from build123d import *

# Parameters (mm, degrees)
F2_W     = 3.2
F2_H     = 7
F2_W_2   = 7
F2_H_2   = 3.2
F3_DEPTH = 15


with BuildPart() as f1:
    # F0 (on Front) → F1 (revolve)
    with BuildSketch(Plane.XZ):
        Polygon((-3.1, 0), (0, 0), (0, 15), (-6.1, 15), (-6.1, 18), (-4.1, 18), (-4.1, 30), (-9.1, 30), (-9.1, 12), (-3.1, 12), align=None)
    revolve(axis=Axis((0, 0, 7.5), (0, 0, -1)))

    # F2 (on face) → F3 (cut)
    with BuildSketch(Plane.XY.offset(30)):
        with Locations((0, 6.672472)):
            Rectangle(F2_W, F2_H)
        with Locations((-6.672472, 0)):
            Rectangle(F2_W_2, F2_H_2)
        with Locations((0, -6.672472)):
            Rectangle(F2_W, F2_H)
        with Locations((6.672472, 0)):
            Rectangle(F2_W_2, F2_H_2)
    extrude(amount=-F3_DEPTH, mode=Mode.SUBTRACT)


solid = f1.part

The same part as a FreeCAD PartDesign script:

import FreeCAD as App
import Part
import Sketcher


def add_polygon(sketch, points):
    """Adds a closed chain of lines whose ends are joined by coincident constraints."""
    first, n = sketch.GeometryCount, len(points)
    for a, b in zip(points, points[1:] + points[:1]):
        sketch.addGeometry(Part.LineSegment(App.Vector(*a, 0), App.Vector(*b, 0)), False)
    for i in range(n):
        sketch.addConstraint(Sketcher.Constraint("Coincident", first + i, 2, first + (i + 1) % n, 1))

doc = App.newDocument("Part")
body = doc.addObject("PartDesign::Body", "Body")

# Sketch on XZ plane
sketch1 = doc.addObject("Sketcher::SketchObject", "Sketch")
body.addObject(sketch1)
sketch1.AttachmentSupport = (doc.XZ_Plane, [""])
sketch1.MapMode = "FlatFace"
add_polygon(sketch1, [(-3.1, 0), (0, 0), (0, 15), (-6.1, 15), (-6.1, 18), (-4.1, 18), (-4.1, 30), (-9.1, 30), (-9.1, 12), (-3.1, 12)])  # lines 0-9
sketch1.addConstraint([
    Sketcher.Constraint("Horizontal", 0),
    Sketcher.Constraint("Vertical", 1),
    Sketcher.Constraint("Horizontal", 2),
    Sketcher.Constraint("Vertical", 3),
    Sketcher.Constraint("Horizontal", 4),
    Sketcher.Constraint("Vertical", 5),
    Sketcher.Constraint("Horizontal", 6),
    Sketcher.Constraint("Vertical", 7),
    Sketcher.Constraint("Horizontal", 8),
    Sketcher.Constraint("Vertical", 9),
    Sketcher.Constraint("Coincident", 0, 2, -1, 1),
    Sketcher.Constraint("Equal", 5, 9),
    Sketcher.Constraint("DistanceX", 4, 1, 4, 2, 2.0),
    Sketcher.Constraint("DistanceX", 6, 2, 6, 1, 5.0),
    Sketcher.Constraint("DistanceX", 8, 1, 8, 2, 6.0),
    Sketcher.Constraint("DistanceY", 1, 1, 1, 2, 15.0),
    Sketcher.Constraint("DistanceY", 3, 1, 3, 2, 3.0),
    Sketcher.Constraint("DistanceY", 5, 1, 5, 2, 12.0),
    Sketcher.Constraint("DistanceX", 0, 1, 0, 2, 3.1),
])
revolution = doc.addObject("PartDesign::Revolution", "Revolution")
body.addObject(revolution)
revolution.Profile = sketch1
revolution.ReferenceAxis = (sketch1, ["V_Axis"])
revolution.Angle = 360

# Sketch on XY plane
sketch2 = doc.addObject("Sketcher::SketchObject", "Sketch001")
body.addObject(sketch2)
sketch2.AttachmentSupport = (doc.XY_Plane, [""])
sketch2.MapMode = "FlatFace"
sketch2.AttachmentOffset = App.Placement(App.Vector(0, 0, 30), App.Rotation())
add_polygon(sketch2, [(-1.6, 10.2), (-1.6, 3.2), (1.6, 3.2), (1.6, 10.2)])  # lines 0-3
add_polygon(sketch2, [(-10.2, 1.6), (-10.2, -1.6), (-3.2, -1.6), (-3.2, 1.6)])  # lines 4-7
add_polygon(sketch2, [(-1.6, -3.2), (-1.6, -10.2), (1.6, -10.2), (1.6, -3.2)])  # lines 8-11
add_polygon(sketch2, [(3.2, 1.6), (3.2, -1.6), (10.2, -1.6), (10.2, 1.6)])  # lines 12-15
sketch2.addConstraint([
    Sketcher.Constraint("Vertical", 0),
    Sketcher.Constraint("Horizontal", 1),
    Sketcher.Constraint("Vertical", 2),
    Sketcher.Constraint("Horizontal", 3),
    Sketcher.Constraint("Vertical", 4),
    Sketcher.Constraint("Horizontal", 5),
    Sketcher.Constraint("Vertical", 6),
    Sketcher.Constraint("Horizontal", 7),
    Sketcher.Constraint("Vertical", 8),
    Sketcher.Constraint("Horizontal", 9),
    Sketcher.Constraint("Vertical", 10),
    Sketcher.Constraint("Horizontal", 11),
    Sketcher.Constraint("Vertical", 12),
    Sketcher.Constraint("Horizontal", 13),
    Sketcher.Constraint("Vertical", 14),
    Sketcher.Constraint("Horizontal", 15),
    Sketcher.Constraint("Symmetric", 2, 2, 8, 2, -1, 1),
    Sketcher.Constraint("Symmetric", 0, 2, 10, 2, -1, 1),
    Sketcher.Constraint("Symmetric", 6, 2, 12, 2, -1, 1),
    Sketcher.Constraint("Symmetric", 4, 2, 14, 2, -1, 1),
    Sketcher.Constraint("Horizontal", 5, 2, 12, 2),
    Sketcher.Constraint("Vertical", 3, 2, 8, 2),
    Sketcher.Constraint("Equal", 15, 0),
    Sketcher.Constraint("Equal", 11, 4),
    Sketcher.Constraint("DistanceX", 5, 1, 5, 2, 7.0),
    Sketcher.Constraint("DistanceX", 1, 1, 1, 2, 3.2),
    Sketcher.Constraint("DistanceY", -1, 1, 0, 2, 3.172472),
    Sketcher.Constraint("DistanceX", 5, 2, -1, 1, 3.172472),
])
pocket1 = doc.addObject("PartDesign::Pocket", "Pocket")
body.addObject(pocket1)
pocket1.Profile = sketch2
pocket1.Length = 15

doc.recompute()
